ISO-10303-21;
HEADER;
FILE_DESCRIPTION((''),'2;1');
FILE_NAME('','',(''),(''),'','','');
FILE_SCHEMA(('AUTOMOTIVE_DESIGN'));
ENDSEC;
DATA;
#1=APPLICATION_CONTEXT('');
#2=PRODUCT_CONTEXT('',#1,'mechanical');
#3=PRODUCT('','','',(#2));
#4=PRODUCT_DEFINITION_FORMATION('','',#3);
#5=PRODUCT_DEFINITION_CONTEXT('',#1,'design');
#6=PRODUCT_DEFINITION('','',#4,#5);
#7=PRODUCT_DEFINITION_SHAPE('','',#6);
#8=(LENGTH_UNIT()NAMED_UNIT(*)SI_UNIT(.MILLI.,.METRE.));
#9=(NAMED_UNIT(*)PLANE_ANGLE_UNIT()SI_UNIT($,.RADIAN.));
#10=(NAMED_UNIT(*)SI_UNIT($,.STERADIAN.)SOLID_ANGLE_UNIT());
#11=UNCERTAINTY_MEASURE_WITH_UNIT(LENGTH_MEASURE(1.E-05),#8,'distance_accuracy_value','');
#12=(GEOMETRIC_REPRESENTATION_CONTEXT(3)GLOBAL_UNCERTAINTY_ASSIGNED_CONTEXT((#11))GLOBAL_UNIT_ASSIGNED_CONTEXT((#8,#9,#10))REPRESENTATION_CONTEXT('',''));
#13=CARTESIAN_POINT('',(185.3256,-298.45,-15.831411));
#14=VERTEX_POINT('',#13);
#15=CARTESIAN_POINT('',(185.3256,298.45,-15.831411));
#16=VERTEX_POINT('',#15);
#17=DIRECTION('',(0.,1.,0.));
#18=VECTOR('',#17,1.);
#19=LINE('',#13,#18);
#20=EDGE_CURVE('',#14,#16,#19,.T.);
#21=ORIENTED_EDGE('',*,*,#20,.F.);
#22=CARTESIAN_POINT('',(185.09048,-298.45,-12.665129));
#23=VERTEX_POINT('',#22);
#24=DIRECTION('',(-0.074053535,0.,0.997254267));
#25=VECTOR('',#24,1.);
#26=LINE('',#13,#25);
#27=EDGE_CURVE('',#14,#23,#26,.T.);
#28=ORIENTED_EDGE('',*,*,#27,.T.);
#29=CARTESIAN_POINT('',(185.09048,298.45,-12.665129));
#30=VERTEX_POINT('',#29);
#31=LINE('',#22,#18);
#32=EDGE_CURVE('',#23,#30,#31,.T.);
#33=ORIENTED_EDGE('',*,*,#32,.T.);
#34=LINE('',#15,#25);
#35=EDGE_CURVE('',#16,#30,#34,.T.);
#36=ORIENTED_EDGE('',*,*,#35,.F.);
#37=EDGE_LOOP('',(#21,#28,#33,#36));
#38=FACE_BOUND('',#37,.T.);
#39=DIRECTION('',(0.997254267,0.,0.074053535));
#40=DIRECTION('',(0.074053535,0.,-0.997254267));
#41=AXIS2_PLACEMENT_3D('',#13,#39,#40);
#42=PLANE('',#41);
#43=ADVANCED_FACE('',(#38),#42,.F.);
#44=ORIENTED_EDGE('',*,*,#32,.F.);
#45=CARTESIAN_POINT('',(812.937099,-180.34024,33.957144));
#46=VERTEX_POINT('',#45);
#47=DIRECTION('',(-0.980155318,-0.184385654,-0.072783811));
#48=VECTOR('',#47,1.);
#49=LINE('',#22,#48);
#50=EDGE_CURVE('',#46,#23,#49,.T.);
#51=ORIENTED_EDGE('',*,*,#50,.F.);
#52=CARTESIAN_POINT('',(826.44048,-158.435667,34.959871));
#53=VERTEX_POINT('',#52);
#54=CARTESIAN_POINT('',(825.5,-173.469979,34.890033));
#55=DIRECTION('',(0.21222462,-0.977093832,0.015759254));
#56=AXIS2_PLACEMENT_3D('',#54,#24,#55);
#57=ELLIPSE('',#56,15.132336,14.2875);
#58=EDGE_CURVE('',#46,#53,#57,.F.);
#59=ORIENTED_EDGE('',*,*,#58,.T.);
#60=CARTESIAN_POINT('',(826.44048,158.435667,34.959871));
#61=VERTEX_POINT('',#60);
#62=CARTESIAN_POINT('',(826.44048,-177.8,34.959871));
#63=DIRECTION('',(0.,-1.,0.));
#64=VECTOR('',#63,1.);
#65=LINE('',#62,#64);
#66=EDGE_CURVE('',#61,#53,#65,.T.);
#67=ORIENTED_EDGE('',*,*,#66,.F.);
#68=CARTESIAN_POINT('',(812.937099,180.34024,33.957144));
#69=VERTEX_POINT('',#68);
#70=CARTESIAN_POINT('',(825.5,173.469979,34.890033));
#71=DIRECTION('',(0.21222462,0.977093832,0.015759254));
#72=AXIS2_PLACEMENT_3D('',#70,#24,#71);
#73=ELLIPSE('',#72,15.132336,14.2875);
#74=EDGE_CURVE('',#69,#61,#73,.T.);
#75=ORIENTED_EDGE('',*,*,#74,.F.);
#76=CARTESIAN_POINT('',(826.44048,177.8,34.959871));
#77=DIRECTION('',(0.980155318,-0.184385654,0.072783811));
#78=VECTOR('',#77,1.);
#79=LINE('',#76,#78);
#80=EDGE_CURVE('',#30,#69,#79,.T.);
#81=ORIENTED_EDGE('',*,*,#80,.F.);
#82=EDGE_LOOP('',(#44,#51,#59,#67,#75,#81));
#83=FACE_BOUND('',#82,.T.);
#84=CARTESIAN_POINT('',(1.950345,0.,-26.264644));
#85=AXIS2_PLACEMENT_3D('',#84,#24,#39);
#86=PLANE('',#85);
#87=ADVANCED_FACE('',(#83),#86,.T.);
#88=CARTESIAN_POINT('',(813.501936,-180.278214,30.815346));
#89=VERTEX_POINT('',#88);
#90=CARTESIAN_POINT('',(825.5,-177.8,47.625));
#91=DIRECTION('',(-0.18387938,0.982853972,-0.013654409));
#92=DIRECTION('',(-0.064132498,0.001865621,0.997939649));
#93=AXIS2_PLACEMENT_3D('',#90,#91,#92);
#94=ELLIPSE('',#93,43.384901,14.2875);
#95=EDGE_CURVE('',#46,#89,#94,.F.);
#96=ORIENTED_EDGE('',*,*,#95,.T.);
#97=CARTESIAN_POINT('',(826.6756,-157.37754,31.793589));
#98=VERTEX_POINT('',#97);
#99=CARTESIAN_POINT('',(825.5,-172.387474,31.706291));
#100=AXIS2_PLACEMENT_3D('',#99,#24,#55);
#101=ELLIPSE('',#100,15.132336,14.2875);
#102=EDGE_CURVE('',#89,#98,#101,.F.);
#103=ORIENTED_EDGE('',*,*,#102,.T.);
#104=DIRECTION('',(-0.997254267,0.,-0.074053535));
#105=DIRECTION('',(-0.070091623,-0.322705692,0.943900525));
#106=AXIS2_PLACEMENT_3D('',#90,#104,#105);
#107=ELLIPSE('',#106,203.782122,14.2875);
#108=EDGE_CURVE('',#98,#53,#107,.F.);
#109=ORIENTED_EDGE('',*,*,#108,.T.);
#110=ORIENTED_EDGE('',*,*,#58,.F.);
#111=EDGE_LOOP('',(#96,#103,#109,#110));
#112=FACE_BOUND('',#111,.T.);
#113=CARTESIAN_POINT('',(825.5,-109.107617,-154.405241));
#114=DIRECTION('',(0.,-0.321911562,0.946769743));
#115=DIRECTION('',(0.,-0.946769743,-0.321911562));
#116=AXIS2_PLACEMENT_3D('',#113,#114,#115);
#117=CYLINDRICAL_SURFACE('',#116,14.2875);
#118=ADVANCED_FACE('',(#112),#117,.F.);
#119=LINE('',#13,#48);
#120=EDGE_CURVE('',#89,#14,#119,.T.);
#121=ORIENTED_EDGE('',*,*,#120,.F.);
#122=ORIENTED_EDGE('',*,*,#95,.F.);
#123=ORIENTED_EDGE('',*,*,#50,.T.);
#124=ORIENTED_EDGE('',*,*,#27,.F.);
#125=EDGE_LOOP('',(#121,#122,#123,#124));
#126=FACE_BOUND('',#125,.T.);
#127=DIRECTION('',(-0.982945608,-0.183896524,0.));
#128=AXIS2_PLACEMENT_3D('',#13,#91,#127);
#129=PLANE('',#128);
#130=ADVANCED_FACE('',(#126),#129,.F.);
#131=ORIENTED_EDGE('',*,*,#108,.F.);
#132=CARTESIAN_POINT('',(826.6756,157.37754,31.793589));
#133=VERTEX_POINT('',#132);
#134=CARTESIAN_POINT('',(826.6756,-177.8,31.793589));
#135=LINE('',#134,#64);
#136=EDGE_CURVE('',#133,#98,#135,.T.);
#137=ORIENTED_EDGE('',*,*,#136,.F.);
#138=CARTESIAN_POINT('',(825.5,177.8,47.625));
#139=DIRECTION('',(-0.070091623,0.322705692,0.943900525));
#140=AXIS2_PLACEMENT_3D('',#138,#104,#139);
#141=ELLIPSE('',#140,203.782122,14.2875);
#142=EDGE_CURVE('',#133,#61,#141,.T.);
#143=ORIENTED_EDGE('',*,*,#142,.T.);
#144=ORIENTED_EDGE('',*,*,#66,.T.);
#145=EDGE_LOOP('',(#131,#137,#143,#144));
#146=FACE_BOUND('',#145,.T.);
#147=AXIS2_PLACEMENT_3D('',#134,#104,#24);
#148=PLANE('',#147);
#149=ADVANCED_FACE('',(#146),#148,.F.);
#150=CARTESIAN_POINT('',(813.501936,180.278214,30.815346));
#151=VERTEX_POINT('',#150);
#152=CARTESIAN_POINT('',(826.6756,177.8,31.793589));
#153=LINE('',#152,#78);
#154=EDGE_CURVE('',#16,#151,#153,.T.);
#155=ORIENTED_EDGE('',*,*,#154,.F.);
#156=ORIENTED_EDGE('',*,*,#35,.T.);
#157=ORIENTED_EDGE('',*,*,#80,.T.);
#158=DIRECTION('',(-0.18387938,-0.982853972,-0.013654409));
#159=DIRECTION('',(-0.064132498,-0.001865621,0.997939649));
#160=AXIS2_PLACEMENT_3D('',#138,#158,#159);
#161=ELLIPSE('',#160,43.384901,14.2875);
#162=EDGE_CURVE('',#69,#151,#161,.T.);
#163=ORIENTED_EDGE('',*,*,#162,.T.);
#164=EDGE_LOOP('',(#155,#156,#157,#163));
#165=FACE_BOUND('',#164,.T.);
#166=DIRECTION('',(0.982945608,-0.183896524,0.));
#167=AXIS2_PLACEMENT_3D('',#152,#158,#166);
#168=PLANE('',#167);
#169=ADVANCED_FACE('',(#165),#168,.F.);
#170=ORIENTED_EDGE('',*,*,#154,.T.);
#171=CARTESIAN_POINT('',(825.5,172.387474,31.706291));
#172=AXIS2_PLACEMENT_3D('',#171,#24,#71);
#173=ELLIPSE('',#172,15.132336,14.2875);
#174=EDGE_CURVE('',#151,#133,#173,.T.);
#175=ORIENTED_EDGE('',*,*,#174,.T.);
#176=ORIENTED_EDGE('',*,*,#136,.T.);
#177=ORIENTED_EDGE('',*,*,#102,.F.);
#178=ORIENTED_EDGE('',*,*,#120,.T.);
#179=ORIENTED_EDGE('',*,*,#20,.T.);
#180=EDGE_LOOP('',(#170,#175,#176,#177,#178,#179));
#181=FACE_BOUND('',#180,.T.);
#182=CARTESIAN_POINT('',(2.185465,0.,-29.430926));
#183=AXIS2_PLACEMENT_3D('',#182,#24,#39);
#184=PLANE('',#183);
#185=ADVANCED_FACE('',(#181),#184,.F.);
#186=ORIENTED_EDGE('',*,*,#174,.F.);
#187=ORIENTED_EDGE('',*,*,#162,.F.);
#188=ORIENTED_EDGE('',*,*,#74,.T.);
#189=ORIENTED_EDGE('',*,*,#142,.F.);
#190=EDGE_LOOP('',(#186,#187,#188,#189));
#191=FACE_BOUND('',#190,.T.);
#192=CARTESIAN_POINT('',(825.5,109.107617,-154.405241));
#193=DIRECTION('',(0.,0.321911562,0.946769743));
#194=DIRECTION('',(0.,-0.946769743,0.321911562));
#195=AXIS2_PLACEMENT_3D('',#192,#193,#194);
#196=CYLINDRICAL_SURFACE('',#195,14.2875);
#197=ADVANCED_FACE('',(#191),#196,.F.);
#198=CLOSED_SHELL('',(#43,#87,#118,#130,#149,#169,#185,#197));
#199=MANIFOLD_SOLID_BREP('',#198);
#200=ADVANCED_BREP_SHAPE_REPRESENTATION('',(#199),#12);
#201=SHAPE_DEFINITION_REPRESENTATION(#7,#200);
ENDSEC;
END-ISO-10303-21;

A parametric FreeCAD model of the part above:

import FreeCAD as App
import Part
import Sketcher

V = App.Vector
Q = App.Units.Quantity

doc = App.newDocument("Part")
body = doc.addObject("PartDesign::Body", "Body")

sketch1 = body.newObject("Sketcher::SketchObject", "Sketch")
sketch1.Placement = App.Placement(V(1.950345, 0, -26.264644), App.Rotation(V(-0.997254267, 0, -0.074053535), V(0, 0.999999999, 0), V(0.074053535, 0, -0.997254267), "ZXY"))
sketch1.addGeometry([
    Part.LineSegment(V(-183.644373, -298.449999, 0), V(-183.644373, 298.449999, 0)),
    Part.LineSegment(V(-183.644373, 298.449999, 0), V(-826.760197, 177.8, 0)),
    Part.LineSegment(V(-826.760197, 177.8, 0), V(-826.760197, -177.8, 0)),
    Part.LineSegment(V(-826.760197, -177.8, 0), V(-183.644373, -298.449999, 0)),
], False)
sketch1.addConstraint([
    Sketcher.Constraint("Coincident", 0, 2, 1, 1),
    Sketcher.Constraint("Coincident", 1, 2, 2, 1),
    Sketcher.Constraint("Coincident", 2, 2, 3, 1),
    Sketcher.Constraint("Coincident", 3, 2, 0, 1),
    Sketcher.Constraint("Vertical", 0),
    Sketcher.Constraint("Vertical", 2),
    Sketcher.Constraint("Equal", 1, 3),
    Sketcher.Constraint("DistanceY", 2, 2, 2, 1, Q("14 in")),
    Sketcher.Constraint("DistanceY", 0, 1, 0, 2, Q("23.5 in")),
    Sketcher.Constraint("DistanceY", -1, 1, 1, 2, Q("7 in")),
    Sketcher.Constraint("Distance", 1, Q("654.335071 mm")),
    Sketcher.Constraint("DistanceX", 0, 2, -1, 1, Q("183.644373 mm")),
])
pad1 = body.newObject("PartDesign::Pad", "Pad")
pad1.Profile = sketch1
pad1.Length = Q("0.125 in")

sketch2 = body.newObject("Sketcher::SketchObject", "Sketch001")
sketch2.Placement = App.Placement(V(825.5, 212.942802, 150.983021), App.Rotation(V(1, 0, 0), V(0, 0.946769743, -0.321911562), V(0, 0.321911562, 0.946769743), "ZXY"))
sketch2.addGeometry(Part.Circle(V(0, 0, 0), V(0, 0, 1), 14.2875), False)
sketch2.addConstraint([
    Sketcher.Constraint("Coincident", 0, 3, -1, 1),
    Sketcher.Constraint("Diameter", 0, Q("1.125 in")),
])
pocket1 = body.newObject("PartDesign::Pocket", "Pocket")
pocket1.Profile = sketch2
pocket1.Type = "ThroughAll"
doc.recompute()

mirrored = body.newObject("PartDesign::Mirrored", "Mirrored")
mirrored.Originals = [pocket1]
mirrored.MirrorPlane = (doc.getObject("XZ_Plane"), [""])
body.Tip = mirrored

doc.recompute()
